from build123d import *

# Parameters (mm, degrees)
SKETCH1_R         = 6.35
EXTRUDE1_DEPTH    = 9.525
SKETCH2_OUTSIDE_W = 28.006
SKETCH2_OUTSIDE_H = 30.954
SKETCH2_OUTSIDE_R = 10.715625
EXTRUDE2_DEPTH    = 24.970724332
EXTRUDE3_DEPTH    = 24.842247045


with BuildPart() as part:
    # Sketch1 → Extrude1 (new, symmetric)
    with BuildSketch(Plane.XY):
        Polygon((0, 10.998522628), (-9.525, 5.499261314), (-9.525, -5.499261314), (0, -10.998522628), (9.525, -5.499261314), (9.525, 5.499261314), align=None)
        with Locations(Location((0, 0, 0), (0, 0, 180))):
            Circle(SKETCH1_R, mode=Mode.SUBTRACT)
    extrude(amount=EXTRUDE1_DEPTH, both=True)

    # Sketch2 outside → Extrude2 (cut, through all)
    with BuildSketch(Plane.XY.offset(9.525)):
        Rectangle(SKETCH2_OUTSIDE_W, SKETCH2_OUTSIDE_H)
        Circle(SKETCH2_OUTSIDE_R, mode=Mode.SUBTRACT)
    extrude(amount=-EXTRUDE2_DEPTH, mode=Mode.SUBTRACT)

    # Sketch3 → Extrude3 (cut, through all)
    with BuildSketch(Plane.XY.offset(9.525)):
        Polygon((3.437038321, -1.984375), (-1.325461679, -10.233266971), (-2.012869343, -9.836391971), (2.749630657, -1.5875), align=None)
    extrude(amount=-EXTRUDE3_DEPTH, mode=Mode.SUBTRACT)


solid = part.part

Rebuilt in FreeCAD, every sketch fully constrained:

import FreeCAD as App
import Part
import Sketcher
from FreeCAD import Vector
Q = App.Units.Quantity

doc = App.newDocument("Part")
body = doc.addObject("PartDesign::Body", "Body")

# Sketch on XY plane
sketch1 = body.newObject("Sketcher::SketchObject", "Sketch")
sketch1.AttachmentSupport = (doc.getObject("XY_Plane"), [""])
sketch1.MapMode = "FlatFace"
sketch1.addGeometry([
    Part.LineSegment(Vector(0, 11, 0), Vector(-10, 5, 0)),  # 0
    Part.LineSegment(Vector(-10, 5, 0), Vector(-10, -5, 0)),  # 1
    Part.LineSegment(Vector(-10, -5, 0), Vector(0, -11, 0)),  # 2
    Part.LineSegment(Vector(0, -11, 0), Vector(10, -5, 0)),  # 3
    Part.LineSegment(Vector(10, -5, 0), Vector(10, 5, 0)),  # 4
    Part.LineSegment(Vector(10, 5, 0), Vector(0, 11, 0)),  # 5
    Part.Circle(Vector(0, 0, 0), Vector(0, 0, 1), 6),  # 6
], False)
sketch1.addConstraint([
    Sketcher.Constraint("Coincident", 0, 2, 1, 1),
    Sketcher.Constraint("Coincident", 1, 2, 2, 1),
    Sketcher.Constraint("Coincident", 2, 2, 3, 1),
    Sketcher.Constraint("Coincident", 3, 2, 4, 1),
    Sketcher.Constraint("Coincident", 4, 2, 5, 1),
    Sketcher.Constraint("Coincident", 5, 2, 0, 1),
    Sketcher.Constraint("Vertical", 1),
    Sketcher.Constraint("Vertical", 4),
    Sketcher.Constraint("Coincident", 6, 3, -1, 1),
    Sketcher.Constraint("Symmetric", 0, 2, 3, 2, -1, 1),
    Sketcher.Constraint("Symmetric", 2, 2, 5, 2, -1, 1),
    Sketcher.Constraint("PointOnObject", 2, 2, -2),
    Sketcher.Constraint("Parallel", 2, 5),
    Sketcher.Constraint("Horizontal", 1, 2, 3, 2),
    Sketcher.Constraint("Diameter", 6, Q("0.5 in")),
    Sketcher.Constraint("Angle", 0, Q("-150 deg")),
    Sketcher.Constraint("DistanceX", 1, 2, 3, 2, Q("0.75 in")),
    Sketcher.Constraint("DistanceY", 1, 2, 1, 1, 10.998523),
])
pad1 = body.newObject("PartDesign::Pad", "Pad")
pad1.Profile = sketch1
pad1.Length = Q("0.75 in")
pad1.Midplane = True

# Sketch on XY plane
sketch2 = body.newObject("Sketcher::SketchObject", "Sketch001")
sketch2.AttachmentSupport = (doc.getObject("XY_Plane"), [""])
sketch2.MapMode = "FlatFace"
sketch2.AttachmentOffset = App.Placement(Vector(0, 0, 0.375 * 25.4), App.Rotation())
sketch2.addGeometry([
    Part.LineSegment(Vector(-14, 15, 0), Vector(-14, -15, 0)),  # 0
    Part.LineSegment(Vector(-14, -15, 0), Vector(14, -15, 0)),  # 1
    Part.LineSegment(Vector(14, -15, 0), Vector(14, 15, 0)),  # 2
    Part.LineSegment(Vector(14, 15, 0), Vector(-14, 15, 0)),  # 3
    Part.Circle(Vector(0, 0, 0), Vector(0, 0, 1), 11),  # 4
], False)
sketch2.addConstraint([
    Sketcher.Constraint("Coincident", 0, 2, 1, 1),
    Sketcher.Constraint("Coincident", 1, 2, 2, 1),
    Sketcher.Constraint("Coincident", 2, 2, 3, 1),
    Sketcher.Constraint("Coincident", 3, 2, 0, 1),
    Sketcher.Constraint("Vertical", 0),
    Sketcher.Constraint("Horizontal", 1),
    Sketcher.Constraint("Vertical", 2),
    Sketcher.Constraint("Horizontal", 3),
    Sketcher.Constraint("Coincident", 4, 3, -1, 1),
    Sketcher.Constraint("Symmetric", 0, 2, 2, 2, -1, 1),
    Sketcher.Constraint("Diameter", 4, Q("0.84375 in")),
    Sketcher.Constraint("DistanceX", 1, 1, 1, 2, 28.006),
    Sketcher.Constraint("DistanceY", 0, 2, 0, 1, 30.954),
])
pocket1 = body.newObject("PartDesign::Pocket", "Pocket")
pocket1.Profile = sketch2
pocket1.Type = "ThroughAll"

# Sketch on XY plane
sketch3 = body.newObject("Sketcher::SketchObject", "Sketch002")
sketch3.AttachmentSupport = (doc.getObject("XY_Plane"), [""])
sketch3.MapMode = "FlatFace"
sketch3.AttachmentOffset = App.Placement(Vector(0, 0, 0.375 * 25.4), App.Rotation())
sketch3.addGeometry([
    Part.LineSegment(Vector(-1.3, -10.2, 0), Vector(3.4, -2, 0)),
    Part.LineSegment(Vector(3.4, -2, 0), Vector(2.7, -1.6, 0)),
    Part.LineSegment(Vector(2.7, -1.6, 0), Vector(-2, -9.8, 0)),
    Part.LineSegment(Vector(-2, -9.8, 0), Vector(-1.3, -10.2, 0)),
], False)
sketch3.addConstraint([
    Sketcher.Constraint("Coincident", 0, 2, 1, 1),
    Sketcher.Constraint("Coincident", 1, 2, 2, 1),
    Sketcher.Constraint("Coincident", 2, 2, 3, 1),
    Sketcher.Constraint("Coincident", 3, 2, 0, 1),
    Sketcher.Constraint("Perpendicular", 0, 1),
    Sketcher.Constraint("Perpendicular", 1, 2),
    Sketcher.Constraint("Perpendicular", 2, 3),
    Sketcher.Constraint("Angle", 0, Q("60 deg")),
    Sketcher.Constraint("Distance", 0, Q("0.375 in")),
    Sketcher.Constraint("Distance", 1, Q("0.03125 in")),
    Sketcher.Constraint("DistanceY", 0, 2, -1, 1, Q("0.078125 in")),
    Sketcher.Constraint("DistanceX", -1, 1, 0, 2, 3.437038),
])
pocket2 = body.newObject("PartDesign::Pocket", "Pocket001")
pocket2.Profile = sketch3
pocket2.Type = "ThroughAll"

doc.recompute()
